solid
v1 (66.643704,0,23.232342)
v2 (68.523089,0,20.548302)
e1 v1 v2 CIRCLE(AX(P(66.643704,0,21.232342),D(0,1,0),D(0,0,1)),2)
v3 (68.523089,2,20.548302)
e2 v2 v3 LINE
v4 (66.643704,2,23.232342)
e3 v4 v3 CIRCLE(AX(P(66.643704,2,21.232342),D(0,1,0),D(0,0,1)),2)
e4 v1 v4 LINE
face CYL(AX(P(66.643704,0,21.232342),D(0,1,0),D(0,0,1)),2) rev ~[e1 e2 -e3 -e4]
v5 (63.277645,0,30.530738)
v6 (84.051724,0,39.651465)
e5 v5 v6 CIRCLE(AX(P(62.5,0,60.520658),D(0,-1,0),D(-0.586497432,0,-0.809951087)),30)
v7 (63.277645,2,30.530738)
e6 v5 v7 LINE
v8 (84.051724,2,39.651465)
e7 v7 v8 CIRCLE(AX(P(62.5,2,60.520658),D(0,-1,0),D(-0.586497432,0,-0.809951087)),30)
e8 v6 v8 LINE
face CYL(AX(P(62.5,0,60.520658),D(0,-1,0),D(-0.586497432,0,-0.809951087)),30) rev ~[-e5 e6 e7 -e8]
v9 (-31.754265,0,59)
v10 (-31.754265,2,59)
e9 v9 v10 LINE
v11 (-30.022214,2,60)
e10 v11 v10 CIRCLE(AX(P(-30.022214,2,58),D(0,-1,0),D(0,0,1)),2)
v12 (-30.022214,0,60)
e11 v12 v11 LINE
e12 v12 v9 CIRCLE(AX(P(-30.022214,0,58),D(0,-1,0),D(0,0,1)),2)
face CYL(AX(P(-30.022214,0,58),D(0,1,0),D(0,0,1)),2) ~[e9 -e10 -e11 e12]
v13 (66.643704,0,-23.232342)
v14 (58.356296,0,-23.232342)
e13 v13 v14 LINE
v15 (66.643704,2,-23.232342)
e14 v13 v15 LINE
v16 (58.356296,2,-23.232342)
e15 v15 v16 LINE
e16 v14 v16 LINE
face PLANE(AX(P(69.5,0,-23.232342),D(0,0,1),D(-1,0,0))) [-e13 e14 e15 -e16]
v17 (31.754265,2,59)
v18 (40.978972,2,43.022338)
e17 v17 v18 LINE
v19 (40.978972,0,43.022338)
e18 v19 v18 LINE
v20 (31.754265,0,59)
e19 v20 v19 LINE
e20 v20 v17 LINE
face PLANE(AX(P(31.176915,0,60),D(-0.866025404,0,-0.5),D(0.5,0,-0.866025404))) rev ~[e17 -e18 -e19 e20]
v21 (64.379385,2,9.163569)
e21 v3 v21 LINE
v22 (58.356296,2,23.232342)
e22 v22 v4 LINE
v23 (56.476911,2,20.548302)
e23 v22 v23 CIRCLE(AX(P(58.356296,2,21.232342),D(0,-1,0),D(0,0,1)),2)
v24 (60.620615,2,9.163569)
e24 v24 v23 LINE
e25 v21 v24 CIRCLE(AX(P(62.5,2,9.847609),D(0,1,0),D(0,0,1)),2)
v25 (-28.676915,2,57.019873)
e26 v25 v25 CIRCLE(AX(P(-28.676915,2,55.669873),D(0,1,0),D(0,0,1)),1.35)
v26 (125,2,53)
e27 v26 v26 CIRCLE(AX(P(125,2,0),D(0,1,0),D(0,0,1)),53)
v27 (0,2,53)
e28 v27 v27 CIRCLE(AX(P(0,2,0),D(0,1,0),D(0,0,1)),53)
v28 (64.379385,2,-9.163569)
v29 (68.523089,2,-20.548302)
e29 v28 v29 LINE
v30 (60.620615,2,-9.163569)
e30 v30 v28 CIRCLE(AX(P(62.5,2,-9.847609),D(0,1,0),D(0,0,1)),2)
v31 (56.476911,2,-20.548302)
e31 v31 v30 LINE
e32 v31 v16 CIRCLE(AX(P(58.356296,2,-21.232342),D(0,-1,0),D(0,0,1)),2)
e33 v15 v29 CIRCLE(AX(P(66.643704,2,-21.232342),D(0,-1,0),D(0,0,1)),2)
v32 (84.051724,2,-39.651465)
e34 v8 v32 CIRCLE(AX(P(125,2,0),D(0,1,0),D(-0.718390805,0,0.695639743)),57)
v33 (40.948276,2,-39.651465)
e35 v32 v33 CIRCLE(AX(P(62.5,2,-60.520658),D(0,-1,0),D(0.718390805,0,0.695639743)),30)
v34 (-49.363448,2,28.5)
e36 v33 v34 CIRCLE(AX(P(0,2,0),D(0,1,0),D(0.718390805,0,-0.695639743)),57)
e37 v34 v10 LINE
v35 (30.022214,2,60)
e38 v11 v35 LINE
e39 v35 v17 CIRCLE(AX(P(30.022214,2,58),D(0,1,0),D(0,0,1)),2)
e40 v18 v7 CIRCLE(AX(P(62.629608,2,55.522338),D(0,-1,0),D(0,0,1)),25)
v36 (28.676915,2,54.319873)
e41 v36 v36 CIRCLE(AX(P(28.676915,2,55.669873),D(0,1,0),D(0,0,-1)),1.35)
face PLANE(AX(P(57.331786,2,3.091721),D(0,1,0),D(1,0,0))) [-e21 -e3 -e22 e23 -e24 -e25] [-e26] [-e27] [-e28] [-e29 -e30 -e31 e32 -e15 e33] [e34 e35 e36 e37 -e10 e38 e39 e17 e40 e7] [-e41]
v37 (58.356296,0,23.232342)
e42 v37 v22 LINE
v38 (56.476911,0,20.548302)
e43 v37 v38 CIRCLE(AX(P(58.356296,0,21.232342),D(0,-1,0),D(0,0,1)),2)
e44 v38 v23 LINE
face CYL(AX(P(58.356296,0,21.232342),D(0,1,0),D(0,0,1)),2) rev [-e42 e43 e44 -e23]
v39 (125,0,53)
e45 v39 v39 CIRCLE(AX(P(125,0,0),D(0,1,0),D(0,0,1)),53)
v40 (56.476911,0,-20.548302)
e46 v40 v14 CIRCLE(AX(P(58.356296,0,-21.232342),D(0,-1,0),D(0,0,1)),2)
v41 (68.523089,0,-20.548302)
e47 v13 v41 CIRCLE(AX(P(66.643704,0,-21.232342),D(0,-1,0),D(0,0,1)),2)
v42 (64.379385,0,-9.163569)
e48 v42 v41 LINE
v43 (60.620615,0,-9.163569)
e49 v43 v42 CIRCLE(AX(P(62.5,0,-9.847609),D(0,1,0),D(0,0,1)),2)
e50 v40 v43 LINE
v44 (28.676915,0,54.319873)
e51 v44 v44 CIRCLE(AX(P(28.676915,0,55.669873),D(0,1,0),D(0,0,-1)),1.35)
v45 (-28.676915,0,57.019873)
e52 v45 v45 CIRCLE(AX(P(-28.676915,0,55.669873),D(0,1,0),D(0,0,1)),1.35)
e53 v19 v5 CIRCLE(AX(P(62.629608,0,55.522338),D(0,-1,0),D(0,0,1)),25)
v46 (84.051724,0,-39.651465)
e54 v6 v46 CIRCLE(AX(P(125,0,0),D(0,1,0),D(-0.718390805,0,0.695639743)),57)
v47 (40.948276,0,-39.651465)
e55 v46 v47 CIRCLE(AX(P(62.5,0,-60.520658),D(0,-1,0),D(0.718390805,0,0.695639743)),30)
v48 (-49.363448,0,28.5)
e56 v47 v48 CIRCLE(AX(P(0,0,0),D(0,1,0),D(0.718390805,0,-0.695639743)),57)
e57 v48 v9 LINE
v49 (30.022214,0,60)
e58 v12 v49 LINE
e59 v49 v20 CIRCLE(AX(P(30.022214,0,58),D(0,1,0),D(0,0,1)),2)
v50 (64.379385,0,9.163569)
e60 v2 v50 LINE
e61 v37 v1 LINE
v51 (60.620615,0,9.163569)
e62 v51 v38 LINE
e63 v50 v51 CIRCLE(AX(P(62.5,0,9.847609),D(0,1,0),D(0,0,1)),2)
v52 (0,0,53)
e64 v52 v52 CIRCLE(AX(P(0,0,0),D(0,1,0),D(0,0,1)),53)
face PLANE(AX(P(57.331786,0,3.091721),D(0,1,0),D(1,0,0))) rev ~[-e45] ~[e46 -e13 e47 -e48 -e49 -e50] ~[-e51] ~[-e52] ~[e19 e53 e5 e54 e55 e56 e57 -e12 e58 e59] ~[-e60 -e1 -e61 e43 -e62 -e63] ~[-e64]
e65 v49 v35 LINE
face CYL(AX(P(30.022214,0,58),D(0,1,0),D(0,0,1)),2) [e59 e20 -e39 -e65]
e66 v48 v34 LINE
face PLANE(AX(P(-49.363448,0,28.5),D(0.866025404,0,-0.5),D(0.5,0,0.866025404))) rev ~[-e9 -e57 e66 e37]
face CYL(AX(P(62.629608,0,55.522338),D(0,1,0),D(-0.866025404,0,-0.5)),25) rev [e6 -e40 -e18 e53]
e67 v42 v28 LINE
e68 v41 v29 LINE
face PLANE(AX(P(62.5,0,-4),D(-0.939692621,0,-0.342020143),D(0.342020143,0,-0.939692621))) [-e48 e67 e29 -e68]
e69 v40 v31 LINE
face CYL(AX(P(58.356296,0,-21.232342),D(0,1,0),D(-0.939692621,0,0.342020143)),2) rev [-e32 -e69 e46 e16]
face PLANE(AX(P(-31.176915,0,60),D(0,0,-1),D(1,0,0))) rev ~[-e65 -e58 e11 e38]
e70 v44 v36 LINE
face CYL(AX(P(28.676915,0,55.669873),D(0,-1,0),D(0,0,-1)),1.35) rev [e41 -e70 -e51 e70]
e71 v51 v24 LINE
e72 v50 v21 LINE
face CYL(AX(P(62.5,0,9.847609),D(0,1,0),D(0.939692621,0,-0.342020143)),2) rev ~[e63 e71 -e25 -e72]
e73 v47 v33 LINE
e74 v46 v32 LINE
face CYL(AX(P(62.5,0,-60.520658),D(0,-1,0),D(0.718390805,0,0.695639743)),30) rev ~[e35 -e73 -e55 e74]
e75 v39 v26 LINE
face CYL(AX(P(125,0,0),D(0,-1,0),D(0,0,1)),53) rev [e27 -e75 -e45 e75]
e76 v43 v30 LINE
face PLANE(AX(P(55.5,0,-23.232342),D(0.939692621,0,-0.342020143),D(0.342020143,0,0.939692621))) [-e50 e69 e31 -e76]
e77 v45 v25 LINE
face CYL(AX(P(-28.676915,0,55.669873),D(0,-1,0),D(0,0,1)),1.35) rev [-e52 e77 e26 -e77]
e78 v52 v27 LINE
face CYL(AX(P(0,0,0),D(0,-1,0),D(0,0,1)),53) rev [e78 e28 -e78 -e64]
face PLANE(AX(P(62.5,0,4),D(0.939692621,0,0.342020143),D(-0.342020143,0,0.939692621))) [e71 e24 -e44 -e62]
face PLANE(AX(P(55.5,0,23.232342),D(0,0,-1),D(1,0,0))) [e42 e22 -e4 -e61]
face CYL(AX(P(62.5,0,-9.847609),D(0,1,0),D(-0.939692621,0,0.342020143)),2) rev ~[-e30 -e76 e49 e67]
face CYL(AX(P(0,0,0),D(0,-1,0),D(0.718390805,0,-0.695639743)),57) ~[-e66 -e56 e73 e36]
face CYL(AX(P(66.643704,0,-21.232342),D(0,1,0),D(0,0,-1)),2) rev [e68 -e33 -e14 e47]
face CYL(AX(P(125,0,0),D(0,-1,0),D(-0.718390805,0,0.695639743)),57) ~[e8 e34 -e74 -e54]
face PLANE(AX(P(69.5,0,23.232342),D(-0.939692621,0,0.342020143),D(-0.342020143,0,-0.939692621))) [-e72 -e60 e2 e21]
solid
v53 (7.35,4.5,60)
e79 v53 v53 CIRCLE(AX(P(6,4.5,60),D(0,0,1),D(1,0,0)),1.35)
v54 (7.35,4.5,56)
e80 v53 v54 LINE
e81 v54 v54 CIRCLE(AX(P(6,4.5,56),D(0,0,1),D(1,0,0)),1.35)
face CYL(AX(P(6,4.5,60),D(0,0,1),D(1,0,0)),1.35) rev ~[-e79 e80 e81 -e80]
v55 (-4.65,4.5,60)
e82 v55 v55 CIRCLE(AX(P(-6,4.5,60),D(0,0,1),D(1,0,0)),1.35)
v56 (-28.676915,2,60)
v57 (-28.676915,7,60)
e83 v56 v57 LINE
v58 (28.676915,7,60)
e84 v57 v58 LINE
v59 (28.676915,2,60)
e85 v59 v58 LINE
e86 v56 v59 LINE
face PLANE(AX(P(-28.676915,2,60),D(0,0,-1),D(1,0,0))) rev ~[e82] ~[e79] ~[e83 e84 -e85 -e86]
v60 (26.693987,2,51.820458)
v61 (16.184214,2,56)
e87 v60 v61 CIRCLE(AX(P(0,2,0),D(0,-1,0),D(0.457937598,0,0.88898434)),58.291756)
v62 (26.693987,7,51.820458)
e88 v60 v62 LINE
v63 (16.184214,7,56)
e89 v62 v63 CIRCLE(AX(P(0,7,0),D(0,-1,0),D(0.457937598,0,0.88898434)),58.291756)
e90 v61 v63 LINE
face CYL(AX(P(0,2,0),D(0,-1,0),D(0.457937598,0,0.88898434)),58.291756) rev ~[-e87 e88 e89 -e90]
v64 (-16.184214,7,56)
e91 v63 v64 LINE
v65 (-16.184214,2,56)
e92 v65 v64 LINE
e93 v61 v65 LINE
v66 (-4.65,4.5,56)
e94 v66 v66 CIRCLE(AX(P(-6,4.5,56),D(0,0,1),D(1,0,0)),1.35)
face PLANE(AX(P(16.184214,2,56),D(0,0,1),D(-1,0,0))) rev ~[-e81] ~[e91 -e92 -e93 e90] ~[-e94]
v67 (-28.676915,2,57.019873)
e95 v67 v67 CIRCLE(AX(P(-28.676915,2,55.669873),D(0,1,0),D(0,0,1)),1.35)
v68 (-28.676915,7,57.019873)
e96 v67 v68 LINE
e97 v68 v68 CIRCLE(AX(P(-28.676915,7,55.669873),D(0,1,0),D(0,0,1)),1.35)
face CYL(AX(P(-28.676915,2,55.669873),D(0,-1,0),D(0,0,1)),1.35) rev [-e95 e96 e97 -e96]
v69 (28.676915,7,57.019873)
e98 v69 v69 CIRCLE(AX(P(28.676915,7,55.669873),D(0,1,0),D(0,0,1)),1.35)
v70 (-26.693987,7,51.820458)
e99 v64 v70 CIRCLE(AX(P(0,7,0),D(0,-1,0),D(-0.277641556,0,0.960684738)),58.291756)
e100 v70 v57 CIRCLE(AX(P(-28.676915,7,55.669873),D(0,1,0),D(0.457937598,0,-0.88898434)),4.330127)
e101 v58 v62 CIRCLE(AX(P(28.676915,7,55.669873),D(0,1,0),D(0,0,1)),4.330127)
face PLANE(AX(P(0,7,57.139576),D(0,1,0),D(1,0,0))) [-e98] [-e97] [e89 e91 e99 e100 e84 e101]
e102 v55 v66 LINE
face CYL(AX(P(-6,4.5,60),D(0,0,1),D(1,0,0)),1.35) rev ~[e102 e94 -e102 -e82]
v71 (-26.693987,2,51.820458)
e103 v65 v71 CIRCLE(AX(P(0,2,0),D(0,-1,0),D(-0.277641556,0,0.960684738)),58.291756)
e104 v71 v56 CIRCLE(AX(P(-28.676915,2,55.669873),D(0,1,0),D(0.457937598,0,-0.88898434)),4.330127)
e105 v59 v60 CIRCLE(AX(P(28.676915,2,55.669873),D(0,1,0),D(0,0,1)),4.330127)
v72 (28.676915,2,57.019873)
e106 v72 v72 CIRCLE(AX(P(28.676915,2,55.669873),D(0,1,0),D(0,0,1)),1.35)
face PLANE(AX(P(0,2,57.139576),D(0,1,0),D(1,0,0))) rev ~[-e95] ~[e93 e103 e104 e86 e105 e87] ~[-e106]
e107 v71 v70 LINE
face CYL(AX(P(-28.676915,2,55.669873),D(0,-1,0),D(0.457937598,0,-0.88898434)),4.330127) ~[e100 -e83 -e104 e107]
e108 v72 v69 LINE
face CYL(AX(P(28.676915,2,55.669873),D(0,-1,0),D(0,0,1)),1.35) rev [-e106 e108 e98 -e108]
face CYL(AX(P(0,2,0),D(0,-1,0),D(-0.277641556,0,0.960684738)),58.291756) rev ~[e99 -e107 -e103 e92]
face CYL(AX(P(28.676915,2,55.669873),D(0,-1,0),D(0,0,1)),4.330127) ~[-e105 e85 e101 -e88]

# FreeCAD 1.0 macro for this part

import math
import FreeCAD as App
import Part
import Sketcher

V = App.Vector
Q = App.Units.Quantity


def edges_at(feature, points):
    """Names of the edges that pass closest to the given points."""
    edges = feature.Shape.Edges
    near = lambda p: min(range(len(edges)), key=lambda i: edges[i].distToShape(Part.Vertex(*p))[0])
    return sorted({f"Edge{near(p) + 1}" for p in points})


def add_polygon(sketch, points):
    """Adds a closed chain of lines whose ends are joined by coincident constraints."""
    first, n = sketch.GeometryCount, len(points)
    for a, b in zip(points, points[1:] + points[:1]):
        sketch.addGeometry(Part.LineSegment(App.Vector(*a, 0), App.Vector(*b, 0)), False)
    for i in range(n):
        sketch.addConstraint(Sketcher.Constraint("Coincident", first + i, 2, first + (i + 1) % n, 1))

doc = App.newDocument("Part")
body = doc.addObject("PartDesign::Body", "Body")

sketch1 = body.newObject("Sketcher::SketchObject", "Sketch")
sketch1.AttachmentSupport = (doc.getObject("XZ_Plane"), [""])
sketch1.MapMode = "FlatFace"
sketch1.addGeometry(Part.LineSegment(V(-31.2, 60, 0), V(31.2, 60, 0)), False)
sketch1.addGeometry(Part.LineSegment(V(31.2, 60, 0), V(44.9, 36.2, 0)), False)
sketch1.addGeometry(Part.ArcOfCircle(Part.Circle(V(62.5, 60.5, 0), V(0, 0, 1), 30), math.radians(-126), math.radians(-44)), False)
sketch1.addGeometry(Part.ArcOfCircle(Part.Circle(V(125, 0, 0), V(0, 0, 1), 57), math.radians(-136), math.radians(136)), False)
sketch1.addGeometry(Part.ArcOfCircle(Part.Circle(V(62.5, -60.5, 0), V(0, 0, 1), 30), math.radians(44), math.radians(136)), False)
sketch1.addGeometry(Part.ArcOfCircle(Part.Circle(V(0, 0, 0), V(0, 0, 1), 57), math.radians(150), math.radians(316)), False)
sketch1.addGeometry(Part.LineSegment(V(-49.4, 28.5, 0), V(-31.2, 60, 0)), False)
sketch1.addGeometry(Part.Circle(V(-28.7, 55.7, 0), V(0, 0, 1), 1.4), False)
sketch1.addGeometry(Part.Circle(V(28.7, 55.7, 0), V(0, 0, 1), 1.4), False)
add_polygon(sketch1, [(69.5, 23.2), (55.5, 23.2), (62.5, 4)])
sketch1.addGeometry(Part.Circle(V(0, 0, 0), V(0, 0, 1), 53), False)
add_polygon(sketch1, [(62.5, -4), (55.5, -23.2), (69.5, -23.2)])
sketch1.addGeometry(Part.Circle(V(125, 0, 0), V(0, 0, 1), 53), False)
sketch1.addConstraint([
    Sketcher.Constraint("Coincident", 0, 2, 1, 1),
    Sketcher.Constraint("Coincident", 1, 2, 2, 1),
    Sketcher.Constraint("Tangent", 2, 2, 3, 2),
    Sketcher.Constraint("Tangent", 3, 1, 4, 1),
    Sketcher.Constraint("Tangent", 4, 2, 5, 2),
    Sketcher.Constraint("Tangent", 5, 1, 6, 1),
    Sketcher.Constraint("Coincident", 6, 2, 0, 1),
    Sketcher.Constraint("Horizontal", 0),
    Sketcher.Constraint("Horizontal", 9),
    Sketcher.Constraint("Horizontal", 14),
    Sketcher.Constraint("Coincident", 5, 3, -1, 1),
    Sketcher.Constraint("Coincident", 12, 3, -1, 1),
    Sketcher.Constraint("Coincident", 16, 3, 3, 3),
    Sketcher.Constraint("Equal", 2, 4),
    Sketcher.Constraint("Equal", 3, 5),
    Sketcher.Constraint("Equal", 7, 8),
    Sketcher.Constraint("Equal", 12, 16),
    Sketcher.Constraint("Symmetric", 7, 3, 8, 3, -2),
    Sketcher.Constraint("Symmetric", 2, 3, 4, 3, -1),
    Sketcher.Constraint("Symmetric", 9, 2, 13, 2, -1),
    Sketcher.Constraint("Symmetric", 10, 2, 15, 2, -1),
    Sketcher.Constraint("Parallel", 11, 13),
    Sketcher.Constraint("Parallel", 10, 15),
    Sketcher.Constraint("Vertical", 4, 3, 10, 2),
    Sketcher.Constraint("Diameter", 12, 106.0),
    Sketcher.Constraint("Radius", 2, 30.0),
    Sketcher.Constraint("Radius", 3, 57.0),
    Sketcher.Constraint("Diameter", 7, 2.7),
    Sketcher.Constraint("DistanceX", 9, 2, 9, 1, 14.0),
    Sketcher.Constraint("Angle", 1, Q("-60 deg")),
    Sketcher.Constraint("Angle", 6, Q("60 deg")),
    Sketcher.Constraint("Angle", 10, Q("-70 deg")),
    Sketcher.Constraint("DistanceX", -1, 1, 3, 3, 125.0),
    Sketcher.Constraint("DistanceY", -1, 1, 0, 2, 60.0),
    Sketcher.Constraint("DistanceY", -1, 1, 10, 2, 4.0),
    Sketcher.Constraint("DistanceX", 8, 3, 0, 2, 2.5),
    Sketcher.Constraint("DistanceX", 6, 2, 7, 3, 2.5),
    Sketcher.Constraint("DistanceY", 4, 3, 7, 3, 116.190531),
])
pad1 = body.newObject("PartDesign::Pad", "Pad")
pad1.Profile = sketch1
pad1.Length = 2
pad1.Reversed = True
doc.recompute()

fillet = body.newObject("PartDesign::Fillet", "Fillet")
fillet.Base = (pad1, edges_at(pad1, [
    (31.177, 1, 60),
    (-31.177, 1, 60),
    (69.5, 1, -23.232),
    (55.5, 1, -23.232),
    (62.5, 1, -4),
    (62.5, 1, 4),
    (55.5, 1, 23.232),
    (69.5, 1, 23.232),
]))
fillet.Radius = 2
doc.recompute()

fillet2 = body.newObject("PartDesign::Fillet", "Fillet001")
fillet2.Base = (fillet, edges_at(fillet, [(44.905, 1, 36.222)]))
fillet2.Radius = 25
body2 = doc.addObject("PartDesign::Body", "Body001")

sketch2 = body2.newObject("Sketcher::SketchObject", "Sketch001")
sketch2.AttachmentSupport = (doc.getObject("XZ_Plane001"), [""])
sketch2.MapMode = "FlatFace"
sketch2.AttachmentOffset = App.Placement(V(0, 0, -2), App.Rotation())
sketch2.addGeometry([
    Part.LineSegment(V(-28.7, 60, 0), V(28.7, 60, 0)),
    Part.ArcOfCircle(Part.Circle(V(28.7, 55.7, 0), V(0, 0, 1), 4.3), math.radians(-117), math.radians(90)),
    Part.ArcOfCircle(Part.Circle(V(0, 0, 0), V(0, 0, 1), 58.3), math.radians(62.75), math.radians(73.88)),
    Part.LineSegment(V(16.2, 56, 0), V(-16.2, 56, 0)),
    Part.ArcOfCircle(Part.Circle(V(0, 0, 0), V(0, 0, 1), 58.3), math.radians(106.12), math.radians(117.25)),
    Part.ArcOfCircle(Part.Circle(V(-28.7, 55.7, 0), V(0, 0, 1), 4.3), math.radians(90), math.radians(297)),
    Part.Circle(V(-28.7, 55.7, 0), V(0, 0, 1), 1.4),
    Part.Circle(V(28.7, 55.7, 0), V(0, 0, 1), 1.4),
], False)
sketch2.addConstraint([
    Sketcher.Constraint("Tangent", 0, 2, 1, 2),
    Sketcher.Constraint("Tangent", 1, 1, 2, 1),
    Sketcher.Constraint("Coincident", 2, 2, 3, 1),
    Sketcher.Constraint("Coincident", 3, 2, 4, 1),
    Sketcher.Constraint("Tangent", 4, 2, 5, 2),
    Sketcher.Constraint("Tangent", 5, 1, 0, 1),
    Sketcher.Constraint("Horizontal", 0),
    Sketcher.Constraint("Horizontal", 3),
    Sketcher.Constraint("Coincident", 2, 3, -1, 1),
    Sketcher.Constraint("Coincident", 4, 3, -1, 1),
    Sketcher.Constraint("Coincident", 6, 3, 5, 3),
    Sketcher.Constraint("Coincident", 7, 3, 1, 3),
    Sketcher.Constraint("Equal", 2, 4),
    Sketcher.Constraint("Equal", 1, 5),
    Sketcher.Constraint("Equal", 6, 7),
    Sketcher.Constraint("Diameter", 6, 2.7),
    Sketcher.Constraint("DistanceY", -1, 1, 0, 2, 60.0),
    Sketcher.Constraint("DistanceY", -1, 1, 2, 2, 56.0),
    Sketcher.Constraint("Radius", 1, 4.330127),
    Sketcher.Constraint("Radius", 2, 58.291756),
])
pad2 = body2.newObject("PartDesign::Pad", "Pad001")
pad2.Profile = sketch2
pad2.Length = 5
pad2.Reversed = True

sketch3 = body2.newObject("Sketcher::SketchObject", "Sketch002")
sketch3.AttachmentSupport = (doc.getObject("XY_Plane001"), [""])
sketch3.MapMode = "FlatFace"
sketch3.AttachmentOffset = App.Placement(V(0, 0, 60), App.Rotation())
sketch3.addGeometry([
    Part.Circle(V(-6, 4.5, 0), V(0, 0, 1), 1.4),
    Part.Circle(V(6, 4.5, 0), V(0, 0, 1), 1.4),
], False)
sketch3.addConstraint([
    Sketcher.Constraint("Equal", 0, 1),
    Sketcher.Constraint("Symmetric", 0, 3, 1, 3, -2),
    Sketcher.Constraint("Diameter", 0, 2.7),
    Sketcher.Constraint("DistanceX", 0, 3, -1, 1, 6.0),
    Sketcher.Constraint("DistanceY", -1, 1, 0, 3, 4.5),
])
pocket1 = body2.newObject("PartDesign::Pocket", "Pocket")
pocket1.Profile = sketch3
pocket1.Type = "ThroughAll"

doc.recompute()
